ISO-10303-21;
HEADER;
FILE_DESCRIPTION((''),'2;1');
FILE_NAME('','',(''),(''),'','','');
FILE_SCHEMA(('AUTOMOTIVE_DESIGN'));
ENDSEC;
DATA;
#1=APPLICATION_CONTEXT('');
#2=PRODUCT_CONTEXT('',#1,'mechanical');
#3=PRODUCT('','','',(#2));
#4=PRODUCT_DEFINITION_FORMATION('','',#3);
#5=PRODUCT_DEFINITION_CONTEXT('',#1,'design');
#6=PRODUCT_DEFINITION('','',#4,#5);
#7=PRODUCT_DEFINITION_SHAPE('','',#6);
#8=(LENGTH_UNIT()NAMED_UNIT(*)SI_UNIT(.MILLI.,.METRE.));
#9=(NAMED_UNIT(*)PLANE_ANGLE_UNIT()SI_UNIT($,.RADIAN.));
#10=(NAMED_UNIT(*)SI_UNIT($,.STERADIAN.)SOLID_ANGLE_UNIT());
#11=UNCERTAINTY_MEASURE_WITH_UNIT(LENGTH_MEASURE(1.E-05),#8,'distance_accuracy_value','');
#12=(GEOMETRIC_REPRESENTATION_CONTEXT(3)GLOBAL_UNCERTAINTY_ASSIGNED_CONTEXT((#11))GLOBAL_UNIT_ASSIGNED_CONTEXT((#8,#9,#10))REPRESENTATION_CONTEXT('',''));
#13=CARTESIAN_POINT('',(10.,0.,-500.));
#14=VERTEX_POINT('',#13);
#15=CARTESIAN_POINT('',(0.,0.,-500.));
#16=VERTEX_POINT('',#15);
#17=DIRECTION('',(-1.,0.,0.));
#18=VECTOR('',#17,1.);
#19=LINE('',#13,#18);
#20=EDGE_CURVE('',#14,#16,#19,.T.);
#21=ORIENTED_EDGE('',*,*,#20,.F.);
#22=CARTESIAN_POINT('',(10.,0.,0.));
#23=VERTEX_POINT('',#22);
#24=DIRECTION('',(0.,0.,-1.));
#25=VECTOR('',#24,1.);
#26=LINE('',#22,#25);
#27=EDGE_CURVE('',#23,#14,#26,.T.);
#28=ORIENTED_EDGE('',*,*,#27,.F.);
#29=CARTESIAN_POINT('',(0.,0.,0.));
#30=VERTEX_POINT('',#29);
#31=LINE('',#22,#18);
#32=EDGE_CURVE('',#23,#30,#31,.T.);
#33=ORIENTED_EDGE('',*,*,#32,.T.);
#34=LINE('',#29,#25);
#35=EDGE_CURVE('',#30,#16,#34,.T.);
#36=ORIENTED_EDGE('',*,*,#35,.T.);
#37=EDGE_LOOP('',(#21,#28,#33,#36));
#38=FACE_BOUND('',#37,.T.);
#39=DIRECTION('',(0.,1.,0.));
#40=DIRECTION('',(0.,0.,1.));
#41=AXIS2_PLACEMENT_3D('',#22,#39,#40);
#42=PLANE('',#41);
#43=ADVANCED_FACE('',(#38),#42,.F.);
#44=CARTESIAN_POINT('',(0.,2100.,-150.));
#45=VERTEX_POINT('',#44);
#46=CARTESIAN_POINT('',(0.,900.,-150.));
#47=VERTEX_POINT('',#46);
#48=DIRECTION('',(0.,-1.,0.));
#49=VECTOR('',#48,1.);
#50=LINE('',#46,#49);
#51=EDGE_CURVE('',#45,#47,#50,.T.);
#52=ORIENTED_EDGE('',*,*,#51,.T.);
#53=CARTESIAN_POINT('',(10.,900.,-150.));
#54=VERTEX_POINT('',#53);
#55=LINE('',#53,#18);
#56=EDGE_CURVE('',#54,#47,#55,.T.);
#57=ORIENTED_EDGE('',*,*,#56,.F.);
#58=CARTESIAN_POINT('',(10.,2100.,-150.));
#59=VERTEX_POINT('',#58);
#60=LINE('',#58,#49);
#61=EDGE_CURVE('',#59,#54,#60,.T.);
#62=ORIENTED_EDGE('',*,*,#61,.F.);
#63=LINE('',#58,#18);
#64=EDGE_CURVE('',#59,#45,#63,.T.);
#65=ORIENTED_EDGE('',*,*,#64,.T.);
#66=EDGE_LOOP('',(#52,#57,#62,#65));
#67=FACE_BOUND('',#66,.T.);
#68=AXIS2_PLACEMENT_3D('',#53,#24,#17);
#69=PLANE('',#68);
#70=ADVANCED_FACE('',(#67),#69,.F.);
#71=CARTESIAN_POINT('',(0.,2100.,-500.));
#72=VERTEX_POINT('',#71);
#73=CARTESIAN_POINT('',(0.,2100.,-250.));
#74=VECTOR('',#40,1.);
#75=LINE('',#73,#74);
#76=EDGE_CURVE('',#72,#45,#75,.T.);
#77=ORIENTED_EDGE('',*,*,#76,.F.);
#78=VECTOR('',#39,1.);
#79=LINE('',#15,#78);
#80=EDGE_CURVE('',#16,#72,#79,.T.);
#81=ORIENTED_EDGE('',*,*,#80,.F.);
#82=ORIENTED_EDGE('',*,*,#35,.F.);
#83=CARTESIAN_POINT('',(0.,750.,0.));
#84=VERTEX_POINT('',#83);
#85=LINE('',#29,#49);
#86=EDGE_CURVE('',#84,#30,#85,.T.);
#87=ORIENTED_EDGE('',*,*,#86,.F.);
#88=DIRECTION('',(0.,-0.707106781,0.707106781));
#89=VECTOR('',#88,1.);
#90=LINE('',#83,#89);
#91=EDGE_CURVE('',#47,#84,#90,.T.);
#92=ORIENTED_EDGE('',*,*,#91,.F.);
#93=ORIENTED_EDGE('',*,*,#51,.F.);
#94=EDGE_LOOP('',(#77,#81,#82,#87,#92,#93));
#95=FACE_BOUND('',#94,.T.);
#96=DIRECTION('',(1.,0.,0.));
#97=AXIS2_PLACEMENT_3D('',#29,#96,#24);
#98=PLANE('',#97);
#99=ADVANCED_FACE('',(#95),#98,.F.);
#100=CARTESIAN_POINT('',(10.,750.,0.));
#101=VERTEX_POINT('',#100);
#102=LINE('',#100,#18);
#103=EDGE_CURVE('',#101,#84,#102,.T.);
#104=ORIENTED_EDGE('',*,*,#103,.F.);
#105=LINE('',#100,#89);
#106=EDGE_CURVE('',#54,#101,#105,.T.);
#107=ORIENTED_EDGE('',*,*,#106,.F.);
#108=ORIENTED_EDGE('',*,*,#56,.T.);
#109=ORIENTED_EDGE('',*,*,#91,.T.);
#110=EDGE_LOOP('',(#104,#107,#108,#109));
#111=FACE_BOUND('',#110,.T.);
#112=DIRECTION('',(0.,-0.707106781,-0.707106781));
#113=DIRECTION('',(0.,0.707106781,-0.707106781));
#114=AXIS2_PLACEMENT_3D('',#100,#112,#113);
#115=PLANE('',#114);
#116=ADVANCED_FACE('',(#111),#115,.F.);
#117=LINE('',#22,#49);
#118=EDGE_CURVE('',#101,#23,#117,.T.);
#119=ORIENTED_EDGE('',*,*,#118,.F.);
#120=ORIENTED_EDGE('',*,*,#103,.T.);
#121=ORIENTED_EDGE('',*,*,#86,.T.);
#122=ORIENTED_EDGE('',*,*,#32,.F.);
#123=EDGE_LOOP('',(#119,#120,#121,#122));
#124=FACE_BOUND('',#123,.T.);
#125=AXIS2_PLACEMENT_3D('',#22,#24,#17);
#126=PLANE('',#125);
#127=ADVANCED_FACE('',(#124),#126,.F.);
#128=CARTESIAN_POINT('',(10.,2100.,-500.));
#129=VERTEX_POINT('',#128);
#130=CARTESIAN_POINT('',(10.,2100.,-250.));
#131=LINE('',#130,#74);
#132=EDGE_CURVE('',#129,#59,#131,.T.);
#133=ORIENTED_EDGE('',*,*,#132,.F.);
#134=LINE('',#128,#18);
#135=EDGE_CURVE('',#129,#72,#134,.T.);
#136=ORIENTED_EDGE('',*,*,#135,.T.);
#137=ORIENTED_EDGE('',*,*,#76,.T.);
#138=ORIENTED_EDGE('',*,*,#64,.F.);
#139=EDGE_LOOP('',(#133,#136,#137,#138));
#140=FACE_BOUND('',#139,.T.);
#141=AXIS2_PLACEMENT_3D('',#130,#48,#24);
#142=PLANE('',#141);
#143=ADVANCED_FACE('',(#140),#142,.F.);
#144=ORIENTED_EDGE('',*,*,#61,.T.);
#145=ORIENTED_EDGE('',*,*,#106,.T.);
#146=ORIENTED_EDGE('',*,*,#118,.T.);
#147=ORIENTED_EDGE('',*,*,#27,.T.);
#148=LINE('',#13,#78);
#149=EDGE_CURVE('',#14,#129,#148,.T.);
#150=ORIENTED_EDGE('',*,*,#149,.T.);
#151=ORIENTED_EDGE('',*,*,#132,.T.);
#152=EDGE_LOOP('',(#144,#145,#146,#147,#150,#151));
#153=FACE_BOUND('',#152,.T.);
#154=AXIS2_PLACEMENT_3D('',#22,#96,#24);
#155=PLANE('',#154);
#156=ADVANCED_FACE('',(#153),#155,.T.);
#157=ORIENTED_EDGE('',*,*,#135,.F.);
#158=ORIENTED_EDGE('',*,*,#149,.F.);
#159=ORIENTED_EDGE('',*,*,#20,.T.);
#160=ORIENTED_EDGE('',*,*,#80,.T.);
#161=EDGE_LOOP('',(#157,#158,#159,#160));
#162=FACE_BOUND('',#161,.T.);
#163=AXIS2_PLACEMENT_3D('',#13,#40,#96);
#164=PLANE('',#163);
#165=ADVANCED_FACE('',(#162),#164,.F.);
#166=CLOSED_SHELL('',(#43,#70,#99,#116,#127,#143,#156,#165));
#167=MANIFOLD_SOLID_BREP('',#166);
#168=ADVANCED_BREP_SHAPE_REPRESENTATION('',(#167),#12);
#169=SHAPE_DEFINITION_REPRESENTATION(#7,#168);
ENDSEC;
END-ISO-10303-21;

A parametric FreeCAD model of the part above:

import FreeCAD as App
import Part
import Sketcher

V = App.Vector

doc = App.newDocument("Part")
body = doc.addObject("PartDesign::Body", "Body")

# Sketch on YZ plane
sketch1 = doc.addObject("Sketcher::SketchObject", "Sketch")
body.addObject(sketch1)
sketch1.AttachmentSupport = (doc.YZ_Plane, [""])
sketch1.MapMode = "FlatFace"
sketch1.addGeometry(Part.LineSegment(V(900, -150, 0), V(750, 0, 0)), False)
sketch1.addGeometry(Part.LineSegment(V(750, 0, 0), V(0, 0, 0)), False)
sketch1.addGeometry(Part.LineSegment(V(0, 0, 0), V(0, -500, 0)), False)
sketch1.addGeometry(Part.LineSegment(V(0, -500, 0), V(2100, -500, 0)), False)
sketch1.addGeometry(Part.LineSegment(V(2100, -500, 0), V(2100, -150, 0)), False)
sketch1.addGeometry(Part.LineSegment(V(2100, -150, 0), V(900, -150, 0)), False)
sketch1.addConstraint(Sketcher.Constraint("Coincident", 0, 2, 1, 1))
sketch1.addConstraint(Sketcher.Constraint("Coincident", 1, 2, 2, 1))
sketch1.addConstraint(Sketcher.Constraint("Coincident", 2, 2, 3, 1))
sketch1.addConstraint(Sketcher.Constraint("Coincident", 3, 2, 4, 1))
sketch1.addConstraint(Sketcher.Constraint("Coincident", 4, 2, 5, 1))
sketch1.addConstraint(Sketcher.Constraint("Coincident", 5, 2, 0, 1))
sketch1.addConstraint(Sketcher.Constraint("Horizontal", 1))
sketch1.addConstraint(Sketcher.Constraint("Vertical", 2))
sketch1.addConstraint(Sketcher.Constraint("Horizontal", 3))
sketch1.addConstraint(Sketcher.Constraint("Vertical", 4))
sketch1.addConstraint(Sketcher.Constraint("Horizontal", 5))
sketch1.addConstraint(Sketcher.Constraint("Coincident", 1, 2, -1, 1))
sketch1.addConstraint(Sketcher.Constraint("DistanceX", 1, 2, 1, 1, 750.0))
sketch1.addConstraint(Sketcher.Constraint("DistanceX", 3, 1, 3, 2, 2100.0))
sketch1.addConstraint(Sketcher.Constraint("DistanceX", 5, 2, 5, 1, 1200.0))
sketch1.addConstraint(Sketcher.Constraint("DistanceY", 2, 2, 2, 1, 500.0))
sketch1.addConstraint(Sketcher.Constraint("DistanceY", 4, 1, 4, 2, 350.0))
pad1 = doc.addObject("PartDesign::Pad", "Pad")
body.addObject(pad1)
pad1.Profile = sketch1
pad1.Length = 10

doc.recompute()
